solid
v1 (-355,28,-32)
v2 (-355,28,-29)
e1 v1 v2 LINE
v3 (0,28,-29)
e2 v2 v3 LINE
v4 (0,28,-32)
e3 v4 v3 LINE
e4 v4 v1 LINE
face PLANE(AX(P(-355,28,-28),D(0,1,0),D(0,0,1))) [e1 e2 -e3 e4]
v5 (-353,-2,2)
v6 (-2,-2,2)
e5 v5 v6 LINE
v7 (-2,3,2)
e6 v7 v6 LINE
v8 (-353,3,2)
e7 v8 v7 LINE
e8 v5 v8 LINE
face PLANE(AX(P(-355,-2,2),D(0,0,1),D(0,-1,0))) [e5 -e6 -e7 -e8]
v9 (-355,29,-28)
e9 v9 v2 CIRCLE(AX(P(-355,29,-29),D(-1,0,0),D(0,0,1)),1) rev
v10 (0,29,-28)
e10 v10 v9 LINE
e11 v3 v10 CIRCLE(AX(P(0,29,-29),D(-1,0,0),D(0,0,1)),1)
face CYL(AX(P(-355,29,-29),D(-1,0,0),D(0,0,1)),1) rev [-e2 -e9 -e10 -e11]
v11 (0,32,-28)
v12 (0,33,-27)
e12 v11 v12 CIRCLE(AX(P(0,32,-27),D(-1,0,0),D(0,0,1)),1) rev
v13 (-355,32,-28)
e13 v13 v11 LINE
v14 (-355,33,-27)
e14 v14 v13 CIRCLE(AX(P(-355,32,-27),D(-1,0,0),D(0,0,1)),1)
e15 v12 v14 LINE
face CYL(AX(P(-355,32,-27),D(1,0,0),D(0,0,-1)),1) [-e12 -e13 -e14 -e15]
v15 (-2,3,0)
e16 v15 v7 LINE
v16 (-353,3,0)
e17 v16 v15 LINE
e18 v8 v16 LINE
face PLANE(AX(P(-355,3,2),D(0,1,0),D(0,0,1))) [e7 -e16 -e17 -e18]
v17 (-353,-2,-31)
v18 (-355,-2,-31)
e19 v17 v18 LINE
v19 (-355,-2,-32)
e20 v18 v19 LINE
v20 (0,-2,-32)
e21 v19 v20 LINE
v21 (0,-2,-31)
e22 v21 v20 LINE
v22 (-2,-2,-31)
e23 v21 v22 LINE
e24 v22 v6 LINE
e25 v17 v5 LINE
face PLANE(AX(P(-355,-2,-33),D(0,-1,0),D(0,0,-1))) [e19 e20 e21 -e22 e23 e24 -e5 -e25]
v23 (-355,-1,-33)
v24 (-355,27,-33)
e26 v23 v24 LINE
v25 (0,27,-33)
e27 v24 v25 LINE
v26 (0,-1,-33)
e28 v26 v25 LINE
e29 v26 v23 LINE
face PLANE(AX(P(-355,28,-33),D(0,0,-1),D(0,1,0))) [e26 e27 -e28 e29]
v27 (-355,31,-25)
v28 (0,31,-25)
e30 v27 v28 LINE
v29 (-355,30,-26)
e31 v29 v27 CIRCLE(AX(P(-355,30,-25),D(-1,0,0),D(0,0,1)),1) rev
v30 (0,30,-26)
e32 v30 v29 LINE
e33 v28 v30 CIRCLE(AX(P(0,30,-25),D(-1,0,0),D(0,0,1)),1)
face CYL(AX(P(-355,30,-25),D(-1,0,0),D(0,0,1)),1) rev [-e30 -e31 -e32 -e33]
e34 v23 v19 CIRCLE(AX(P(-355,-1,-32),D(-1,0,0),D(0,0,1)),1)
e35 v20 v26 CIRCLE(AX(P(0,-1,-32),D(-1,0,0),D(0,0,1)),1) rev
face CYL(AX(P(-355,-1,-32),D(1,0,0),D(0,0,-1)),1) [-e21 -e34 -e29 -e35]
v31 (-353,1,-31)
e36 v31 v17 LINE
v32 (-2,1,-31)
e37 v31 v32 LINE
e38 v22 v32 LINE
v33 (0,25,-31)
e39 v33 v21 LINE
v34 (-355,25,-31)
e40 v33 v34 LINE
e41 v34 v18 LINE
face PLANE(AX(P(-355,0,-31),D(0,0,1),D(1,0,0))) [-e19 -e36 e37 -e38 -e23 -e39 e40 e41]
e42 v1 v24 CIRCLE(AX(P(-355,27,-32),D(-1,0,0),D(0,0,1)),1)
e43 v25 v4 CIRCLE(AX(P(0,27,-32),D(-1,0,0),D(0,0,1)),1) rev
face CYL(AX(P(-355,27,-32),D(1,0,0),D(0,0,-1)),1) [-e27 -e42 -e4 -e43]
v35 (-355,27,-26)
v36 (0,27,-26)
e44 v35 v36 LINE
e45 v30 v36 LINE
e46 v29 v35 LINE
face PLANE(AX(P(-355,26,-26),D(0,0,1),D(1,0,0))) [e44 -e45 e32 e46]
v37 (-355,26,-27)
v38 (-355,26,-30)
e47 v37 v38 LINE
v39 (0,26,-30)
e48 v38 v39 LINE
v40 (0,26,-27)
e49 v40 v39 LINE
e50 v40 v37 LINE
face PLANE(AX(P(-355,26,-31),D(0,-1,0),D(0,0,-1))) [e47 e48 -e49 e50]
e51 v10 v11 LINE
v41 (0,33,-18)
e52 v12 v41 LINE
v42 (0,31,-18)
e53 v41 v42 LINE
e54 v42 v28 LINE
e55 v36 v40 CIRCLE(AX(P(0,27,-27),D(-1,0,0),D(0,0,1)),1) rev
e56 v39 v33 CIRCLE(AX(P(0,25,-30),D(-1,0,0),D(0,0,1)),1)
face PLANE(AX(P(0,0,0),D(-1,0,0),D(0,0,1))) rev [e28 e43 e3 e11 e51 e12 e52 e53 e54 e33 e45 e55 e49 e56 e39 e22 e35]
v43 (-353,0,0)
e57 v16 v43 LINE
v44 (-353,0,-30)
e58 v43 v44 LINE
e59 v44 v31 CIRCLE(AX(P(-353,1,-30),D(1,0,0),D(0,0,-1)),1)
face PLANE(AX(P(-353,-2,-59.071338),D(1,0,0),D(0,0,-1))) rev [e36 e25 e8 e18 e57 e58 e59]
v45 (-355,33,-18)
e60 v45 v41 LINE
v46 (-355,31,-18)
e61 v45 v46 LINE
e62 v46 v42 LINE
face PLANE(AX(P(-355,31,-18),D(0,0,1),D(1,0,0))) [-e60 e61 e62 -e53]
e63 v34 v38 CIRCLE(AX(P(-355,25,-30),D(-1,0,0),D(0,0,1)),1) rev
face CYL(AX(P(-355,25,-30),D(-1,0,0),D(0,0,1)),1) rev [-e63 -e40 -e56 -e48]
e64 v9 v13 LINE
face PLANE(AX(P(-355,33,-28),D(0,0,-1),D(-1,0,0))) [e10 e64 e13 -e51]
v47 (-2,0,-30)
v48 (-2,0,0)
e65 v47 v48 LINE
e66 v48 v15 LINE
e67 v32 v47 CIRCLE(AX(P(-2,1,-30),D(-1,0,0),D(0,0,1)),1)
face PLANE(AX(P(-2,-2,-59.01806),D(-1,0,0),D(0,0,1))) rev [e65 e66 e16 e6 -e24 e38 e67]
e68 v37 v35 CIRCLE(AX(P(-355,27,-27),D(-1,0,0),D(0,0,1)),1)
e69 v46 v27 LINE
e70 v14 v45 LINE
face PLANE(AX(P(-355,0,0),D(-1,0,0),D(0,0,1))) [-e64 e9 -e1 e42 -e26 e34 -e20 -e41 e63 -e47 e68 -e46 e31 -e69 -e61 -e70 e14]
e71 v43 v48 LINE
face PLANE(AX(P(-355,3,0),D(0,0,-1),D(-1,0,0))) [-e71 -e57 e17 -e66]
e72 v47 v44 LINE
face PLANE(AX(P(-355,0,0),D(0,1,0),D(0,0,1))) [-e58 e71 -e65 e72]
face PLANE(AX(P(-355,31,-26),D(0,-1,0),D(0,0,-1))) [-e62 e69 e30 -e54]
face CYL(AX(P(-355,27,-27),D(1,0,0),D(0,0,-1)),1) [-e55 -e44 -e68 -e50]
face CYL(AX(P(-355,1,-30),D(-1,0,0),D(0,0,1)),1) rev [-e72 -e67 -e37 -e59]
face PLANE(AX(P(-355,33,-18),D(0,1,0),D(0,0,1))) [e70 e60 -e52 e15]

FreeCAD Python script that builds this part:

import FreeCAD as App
import Part
import Sketcher
Q = App.Units.Quantity


def edges_at(feature, points):
    """Names of the edges that pass closest to the given points."""
    edges = feature.Shape.Edges
    near = lambda p: min(range(len(edges)), key=lambda i: edges[i].distToShape(Part.Vertex(*p))[0])
    return sorted({f"Edge{near(p) + 1}" for p in points})


def add_polygon(sketch, points):
    """Adds a closed chain of lines whose ends are joined by coincident constraints."""
    first, n = sketch.GeometryCount, len(points)
    for a, b in zip(points, points[1:] + points[:1]):
        sketch.addGeometry(Part.LineSegment(App.Vector(*a, 0), App.Vector(*b, 0)), False)
    for i in range(n):
        sketch.addConstraint(Sketcher.Constraint("Coincident", first + i, 2, first + (i + 1) % n, 1))

doc = App.newDocument("Part")
body = doc.addObject("PartDesign::Body", "Body")

sketch1 = body.newObject("Sketcher::SketchObject", "Sketch")
sketch1.AttachmentSupport = (doc.getObject("YZ_Plane"), [""])
sketch1.MapMode = "FlatFace"
add_polygon(sketch1, [(0, 0), (3, 0), (3, 2), (-2, 2), (-2, -33), (28, -33), (28, -28), (33, -28), (33, -18), (31, -18), (31, -26), (26, -26), (26, -31), (0, -31)])
sketch1.addConstraint([
    Sketcher.Constraint("Horizontal", 0),
    Sketcher.Constraint("Vertical", 1),
    Sketcher.Constraint("Horizontal", 2),
    Sketcher.Constraint("Vertical", 3),
    Sketcher.Constraint("Horizontal", 4),
    Sketcher.Constraint("Vertical", 5),
    Sketcher.Constraint("Horizontal", 6),
    Sketcher.Constraint("Vertical", 7),
    Sketcher.Constraint("Horizontal", 8),
    Sketcher.Constraint("Vertical", 9),
    Sketcher.Constraint("Horizontal", 10),
    Sketcher.Constraint("Vertical", 11),
    Sketcher.Constraint("Horizontal", 12),
    Sketcher.Constraint("Vertical", 13),
    Sketcher.Constraint("Coincident", 13, 2, -1, 1),
    Sketcher.Constraint("Equal", 2, 6),
    Sketcher.Constraint("Equal", 6, 10),
    Sketcher.Constraint("Equal", 8, 1),
    Sketcher.Constraint("Equal", 10, 5),
    Sketcher.Constraint("Equal", 5, 11),
    Sketcher.Constraint("DistanceX", 0, 1, 0, 2, Q("3 mm")),
    Sketcher.Constraint("DistanceX", 2, 2, 2, 1, Q("5 mm")),
    Sketcher.Constraint("DistanceX", 4, 1, 4, 2, Q("30 mm")),
    Sketcher.Constraint("DistanceX", 8, 2, 8, 1, Q("2 mm")),
    Sketcher.Constraint("DistanceY", 3, 2, 3, 1, Q("35 mm")),
    Sketcher.Constraint("DistanceY", 7, 1, 7, 2, Q("10 mm")),
    Sketcher.Constraint("DistanceY", 9, 2, 9, 1, Q("8 mm")),
])
pad1 = body.newObject("PartDesign::Pad", "Pad")
pad1.Profile = sketch1
pad1.Length = 355
pad1.Reversed = True

sketch2 = body.newObject("Sketcher::SketchObject", "Sketch001")
sketch2.AttachmentSupport = (doc.getObject("XY_Plane"), [""])
sketch2.MapMode = "FlatFace"
sketch2.AttachmentOffset = App.Placement(App.Vector(0, 0, 2), App.Rotation())
add_polygon(sketch2, [(-2, 25.946587), (-2, -2), (0, -2), (0, 25.946587)])
sketch2.addConstraint([
    Sketcher.Constraint("Vertical", 0),
    Sketcher.Constraint("Horizontal", 1),
    Sketcher.Constraint("Vertical", 2),
    Sketcher.Constraint("Horizontal", 3),
    Sketcher.Constraint("PointOnObject", 1, 2, -2),
    Sketcher.Constraint("DistanceX", 1, 1, 1, 2, Q("2 mm")),
    Sketcher.Constraint("DistanceY", 0, 2, -1, 1, Q("2 mm")),
    Sketcher.Constraint("DistanceY", 0, 2, 0, 1, Q("27.946587 mm")),
])
pocket1 = body.newObject("PartDesign::Pocket", "Pocket")
pocket1.Profile = sketch2
pocket1.Length = 33

sketch3 = body.newObject("Sketcher::SketchObject", "Sketch002")
sketch3.AttachmentSupport = (doc.getObject("XY_Plane"), [""])
sketch3.MapMode = "FlatFace"
sketch3.AttachmentOffset = App.Placement(App.Vector(0, 0, 2), App.Rotation())
add_polygon(sketch3, [(-355, 26), (-355, -2), (-353, -2), (-353, 26)])
sketch3.addConstraint([
    Sketcher.Constraint("Vertical", 0),
    Sketcher.Constraint("Horizontal", 1),
    Sketcher.Constraint("Vertical", 2),
    Sketcher.Constraint("Horizontal", 3),
    Sketcher.Constraint("DistanceX", 1, 1, 1, 2, Q("2 mm")),
    Sketcher.Constraint("DistanceY", 0, 2, 0, 1, Q("28 mm")),
    Sketcher.Constraint("DistanceX", 0, 2, -1, 1, Q("355 mm")),
    Sketcher.Constraint("DistanceY", 0, 2, -1, 1, Q("2 mm")),
])
pocket2 = body.newObject("PartDesign::Pocket", "Pocket001")
pocket2.Profile = sketch3
pocket2.Length = 33
doc.recompute()

fillet = body.newObject("PartDesign::Fillet", "Fillet")
fillet.Base = (pocket2, edges_at(pocket2, [
    (-177.5, 26, -31),
    (-177.5, 31, -26),
    (-177.5, 33, -28),
    (-177.5, 28, -28),
    (-177.5, 28, -33),
]))
fillet.Radius = 1
doc.recompute()

fillet2 = body.newObject("PartDesign::Fillet", "Fillet001")
fillet2.Base = (fillet, edges_at(fillet, [(-177.5, -2, -33)]))
fillet2.Radius = 1
doc.recompute()

fillet3 = body.newObject("PartDesign::Fillet", "Fillet002")
fillet3.Base = (fillet2, edges_at(fillet2, [(-177.5, 0, -31)]))
fillet3.Radius = 1
doc.recompute()

fillet4 = body.newObject("PartDesign::Fillet", "Fillet003")
fillet4.Base = (fillet3, edges_at(fillet3, [(-177.5, 26, -26)]))
fillet4.Radius = 1

doc.recompute()
